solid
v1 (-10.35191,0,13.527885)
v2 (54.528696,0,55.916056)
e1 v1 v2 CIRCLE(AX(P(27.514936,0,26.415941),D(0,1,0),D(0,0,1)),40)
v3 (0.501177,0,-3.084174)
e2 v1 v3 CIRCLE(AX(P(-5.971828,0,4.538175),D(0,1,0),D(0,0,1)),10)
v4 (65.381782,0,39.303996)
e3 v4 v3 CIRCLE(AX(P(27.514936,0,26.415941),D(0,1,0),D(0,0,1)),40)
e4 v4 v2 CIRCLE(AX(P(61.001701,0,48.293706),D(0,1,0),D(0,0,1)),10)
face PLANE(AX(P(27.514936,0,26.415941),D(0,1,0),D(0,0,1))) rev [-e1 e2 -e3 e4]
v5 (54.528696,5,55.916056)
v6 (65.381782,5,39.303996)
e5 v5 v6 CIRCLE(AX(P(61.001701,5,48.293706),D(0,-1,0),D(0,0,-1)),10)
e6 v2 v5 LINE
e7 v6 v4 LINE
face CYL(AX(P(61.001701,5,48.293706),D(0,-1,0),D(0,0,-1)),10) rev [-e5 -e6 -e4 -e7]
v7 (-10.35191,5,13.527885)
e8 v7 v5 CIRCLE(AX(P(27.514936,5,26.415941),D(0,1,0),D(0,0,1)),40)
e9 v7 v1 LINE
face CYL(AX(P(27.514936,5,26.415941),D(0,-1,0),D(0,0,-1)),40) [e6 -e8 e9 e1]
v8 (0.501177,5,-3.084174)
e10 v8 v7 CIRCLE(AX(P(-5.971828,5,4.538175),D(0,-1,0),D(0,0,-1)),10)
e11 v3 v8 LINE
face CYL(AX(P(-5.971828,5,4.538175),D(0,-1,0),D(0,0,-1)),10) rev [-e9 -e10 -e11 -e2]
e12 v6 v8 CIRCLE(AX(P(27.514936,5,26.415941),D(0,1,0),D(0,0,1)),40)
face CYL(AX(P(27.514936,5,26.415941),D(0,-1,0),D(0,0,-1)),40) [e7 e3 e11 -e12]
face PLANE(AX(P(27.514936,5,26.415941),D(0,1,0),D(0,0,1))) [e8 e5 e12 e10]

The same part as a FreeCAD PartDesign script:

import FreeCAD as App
import Part
import Sketcher

V = App.Vector
Q = App.Units.Quantity

doc = App.newDocument("Part")
body = doc.addObject("PartDesign::Body", "Body")

# Sketch on XZ plane
sketch1 = body.newObject("Sketcher::SketchObject", "Sketch")
sketch1.AttachmentSupport = (doc.getObject("XZ_Plane"), [""])
sketch1.MapMode = "FlatFace"
sketch1.addGeometry(Part.Circle(V(28, 26, 0), V(0, 0, 1), 40), False)
sketch1.addConstraint(Sketcher.Constraint("Diameter", 0, Q("80 mm")))
sketch1.addConstraint(Sketcher.Constraint("DistanceY", -1, 1, 0, 3, Q("26.415941 mm")))
sketch1.addConstraint(Sketcher.Constraint("DistanceX", -1, 1, 0, 3, Q("27.514936 mm")))
pad1 = body.newObject("PartDesign::Pad", "Pad")
pad1.Profile = sketch1
pad1.Length = 5
pad1.Reversed = True

# Sketch on XZ plane
sketch2 = body.newObject("Sketcher::SketchObject", "Sketch001")
sketch2.AttachmentSupport = (doc.getObject("XZ_Plane"), [""])
sketch2.MapMode = "FlatFace"
sketch2.AttachmentOffset = App.Placement(V(0, 0, -5), App.Rotation())
sketch2.addGeometry(Part.Circle(V(-6, 5, 0), V(0, 0, 1), 10), False)
sketch2.addGeometry(Part.Circle(V(61, 48, 0), V(0, 0, 1), 10), False)
sketch2.addConstraint(Sketcher.Constraint("Equal", 0, 1))
sketch2.addConstraint(Sketcher.Constraint("Diameter", 0, Q("20 mm")))
sketch2.addConstraint(Sketcher.Constraint("DistanceX", -1, 1, 1, 3, Q("61.001701 mm")))
sketch2.addConstraint(Sketcher.Constraint("DistanceX", 0, 3, 1, 3, Q("66.973528 mm")))
sketch2.addConstraint(Sketcher.Constraint("DistanceY", 0, 3, 1, 3, Q("43.755531 mm")))
sketch2.addConstraint(Sketcher.Constraint("DistanceY", -1, 1, 0, 3, Q("4.538175 mm")))
pocket1 = body.newObject("PartDesign::Pocket", "Pocket")
pocket1.Profile = sketch2
pocket1.Length = 16
pocket1.Reversed = True

doc.recompute()
